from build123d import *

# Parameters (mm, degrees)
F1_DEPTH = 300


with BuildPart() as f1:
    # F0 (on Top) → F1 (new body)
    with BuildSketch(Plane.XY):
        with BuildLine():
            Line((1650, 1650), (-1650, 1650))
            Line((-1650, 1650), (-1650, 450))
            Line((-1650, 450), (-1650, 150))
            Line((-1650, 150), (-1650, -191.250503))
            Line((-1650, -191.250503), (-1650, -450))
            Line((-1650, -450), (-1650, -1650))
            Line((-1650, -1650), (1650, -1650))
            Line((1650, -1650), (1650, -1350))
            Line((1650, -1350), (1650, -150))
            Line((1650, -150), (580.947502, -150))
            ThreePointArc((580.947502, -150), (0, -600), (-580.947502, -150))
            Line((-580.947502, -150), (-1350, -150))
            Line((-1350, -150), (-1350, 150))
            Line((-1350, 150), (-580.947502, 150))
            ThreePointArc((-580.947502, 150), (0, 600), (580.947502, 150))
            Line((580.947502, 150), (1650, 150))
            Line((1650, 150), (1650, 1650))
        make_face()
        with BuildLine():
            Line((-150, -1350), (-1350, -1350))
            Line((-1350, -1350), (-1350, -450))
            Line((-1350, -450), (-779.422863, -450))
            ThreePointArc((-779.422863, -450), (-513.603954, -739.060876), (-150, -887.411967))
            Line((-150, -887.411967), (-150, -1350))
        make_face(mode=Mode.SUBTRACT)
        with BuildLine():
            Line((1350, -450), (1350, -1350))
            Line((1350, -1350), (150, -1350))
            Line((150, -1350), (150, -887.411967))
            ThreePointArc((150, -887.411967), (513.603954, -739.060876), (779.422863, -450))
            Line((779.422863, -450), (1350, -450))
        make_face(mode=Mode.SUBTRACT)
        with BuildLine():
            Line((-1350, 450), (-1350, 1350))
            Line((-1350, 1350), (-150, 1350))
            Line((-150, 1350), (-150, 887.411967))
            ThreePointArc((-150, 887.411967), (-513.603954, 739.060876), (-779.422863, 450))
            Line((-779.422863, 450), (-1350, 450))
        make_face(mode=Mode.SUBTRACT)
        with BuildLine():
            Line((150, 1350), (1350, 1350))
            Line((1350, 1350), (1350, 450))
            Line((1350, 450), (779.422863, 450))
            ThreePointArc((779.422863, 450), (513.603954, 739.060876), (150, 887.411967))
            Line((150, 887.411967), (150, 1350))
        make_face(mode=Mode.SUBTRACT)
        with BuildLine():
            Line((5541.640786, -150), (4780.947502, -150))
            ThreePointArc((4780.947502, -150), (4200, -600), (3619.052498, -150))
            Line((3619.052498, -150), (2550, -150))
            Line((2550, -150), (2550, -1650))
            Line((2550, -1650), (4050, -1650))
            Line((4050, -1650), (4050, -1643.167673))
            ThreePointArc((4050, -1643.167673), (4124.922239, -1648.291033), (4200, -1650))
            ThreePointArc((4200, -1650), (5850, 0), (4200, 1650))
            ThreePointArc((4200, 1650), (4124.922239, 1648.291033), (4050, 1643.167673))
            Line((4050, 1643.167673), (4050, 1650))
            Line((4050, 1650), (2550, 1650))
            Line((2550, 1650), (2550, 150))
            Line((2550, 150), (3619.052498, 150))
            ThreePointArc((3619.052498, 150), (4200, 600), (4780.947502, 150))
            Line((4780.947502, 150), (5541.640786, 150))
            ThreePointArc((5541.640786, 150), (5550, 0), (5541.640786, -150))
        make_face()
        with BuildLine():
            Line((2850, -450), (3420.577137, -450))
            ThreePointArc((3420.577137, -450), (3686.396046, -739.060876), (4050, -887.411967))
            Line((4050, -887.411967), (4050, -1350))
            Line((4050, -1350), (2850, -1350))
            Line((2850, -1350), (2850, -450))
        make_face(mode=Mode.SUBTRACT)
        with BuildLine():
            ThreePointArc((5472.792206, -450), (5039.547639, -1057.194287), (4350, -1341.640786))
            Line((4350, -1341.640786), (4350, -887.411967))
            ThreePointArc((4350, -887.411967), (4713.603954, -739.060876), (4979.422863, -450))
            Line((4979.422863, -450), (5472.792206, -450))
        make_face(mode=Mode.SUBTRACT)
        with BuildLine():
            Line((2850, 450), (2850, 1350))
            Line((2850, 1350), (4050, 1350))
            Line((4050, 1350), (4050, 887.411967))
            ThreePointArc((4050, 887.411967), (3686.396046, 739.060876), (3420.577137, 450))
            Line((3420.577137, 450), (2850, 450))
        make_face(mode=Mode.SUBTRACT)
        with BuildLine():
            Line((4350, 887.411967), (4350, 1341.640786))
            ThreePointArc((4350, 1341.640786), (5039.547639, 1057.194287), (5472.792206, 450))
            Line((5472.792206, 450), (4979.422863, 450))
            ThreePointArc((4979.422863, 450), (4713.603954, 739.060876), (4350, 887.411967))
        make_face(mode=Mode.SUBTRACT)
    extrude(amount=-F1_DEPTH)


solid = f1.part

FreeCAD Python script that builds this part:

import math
import FreeCAD as App
import Part
import Sketcher

V = App.Vector

doc = App.newDocument("Part")
body = doc.addObject("PartDesign::Body", "Body")
body.AllowCompound = True

# Sketch on XY plane
sketch1 = body.newObject("Sketcher::SketchObject", "Sketch")
sketch1.AttachmentSupport = (doc.getObject("XY_Plane"), [""])
sketch1.MapMode = "FlatFace"
sketch1.addGeometry([
    Part.LineSegment(V(1650, 1650, 0), V(-1650, 1650, 0)),  # 0
    Part.LineSegment(V(-1650, 1650, 0), V(-1650, -1650, 0)),  # 1
    Part.LineSegment(V(-1650, -1650, 0), V(1650, -1650, 0)),  # 2
    Part.LineSegment(V(1650, -1650, 0), V(1650, -150, 0)),  # 3
    Part.LineSegment(V(1650, -150, 0), V(580.947502, -150, 0)),  # 4
    Part.ArcOfCircle(Part.Circle(V(0, 0, 0), V(0, 0, 1), 600), math.radians(-165.522488), math.radians(-14.477512)),  # 5
    Part.LineSegment(V(-580.947502, -150, 0), V(-1350, -150, 0)),  # 6
    Part.LineSegment(V(-1350, -150, 0), V(-1350, 150, 0)),  # 7
    Part.LineSegment(V(-1350, 150, 0), V(-580.947502, 150, 0)),  # 8
    Part.ArcOfCircle(Part.Circle(V(0, 0, 0), V(0, 0, 1), 600), math.radians(14.477512), math.radians(165.522488)),  # 9
    Part.LineSegment(V(580.947502, 150, 0), V(1650, 150, 0)),  # 10
    Part.LineSegment(V(1650, 150, 0), V(1650, 1650, 0)),  # 11
    Part.LineSegment(V(-150, -887.411967, 0), V(-150, -1350, 0)),  # 12
    Part.LineSegment(V(-150, -1350, 0), V(-1350, -1350, 0)),  # 13
    Part.LineSegment(V(-1350, -1350, 0), V(-1350, -450, 0)),  # 14
    Part.LineSegment(V(-1350, -450, 0), V(-779.422863, -450, 0)),  # 15
    Part.ArcOfCircle(Part.Circle(V(-0.000003, -0.000003, 0), V(0, 0, 1), 899.999996), math.radians(-150), math.radians(-99.594068)),  # 16
    Part.LineSegment(V(779.422863, -450, 0), V(1350, -450, 0)),  # 17
    Part.LineSegment(V(1350, -450, 0), V(1350, -1350, 0)),  # 18
    Part.LineSegment(V(1350, -1350, 0), V(150, -1350, 0)),  # 19
    Part.LineSegment(V(150, -1350, 0), V(150, -887.411967, 0)),  # 20
    Part.ArcOfCircle(Part.Circle(V(0.000003, -0.000003, 0), V(0, 0, 1), 899.999996), math.radians(-80.405932), math.radians(-30)),  # 21
    Part.LineSegment(V(-779.422863, 450, 0), V(-1350, 450, 0)),  # 22
    Part.LineSegment(V(-1350, 450, 0), V(-1350, 1350, 0)),  # 23
    Part.LineSegment(V(-1350, 1350, 0), V(-150, 1350, 0)),  # 24
    Part.LineSegment(V(-150, 1350, 0), V(-150, 887.411967, 0)),  # 25
    Part.ArcOfCircle(Part.Circle(V(-0.000003, 0.000003, 0), V(0, 0, 1), 899.999996), math.radians(99.594068), math.radians(150)),  # 26
    Part.LineSegment(V(150, 887.411967, 0), V(150, 1350, 0)),  # 27
    Part.LineSegment(V(150, 1350, 0), V(1350, 1350, 0)),  # 28
    Part.LineSegment(V(1350, 1350, 0), V(1350, 450, 0)),  # 29
    Part.LineSegment(V(1350, 450, 0), V(779.422863, 450, 0)),  # 30
    Part.ArcOfCircle(Part.Circle(V(0.000003, 0.000003, 0), V(0, 0, 1), 899.999996), math.radians(30), math.radians(80.405932)),  # 31
    Part.LineSegment(V(5541.640786, -150, 0), V(4780.947502, -150, 0)),  # 32
    Part.ArcOfCircle(Part.Circle(V(4200, 0, 0), V(0, 0, 1), 600), math.radians(-165.522488), math.radians(-14.477512)),  # 33
    Part.LineSegment(V(3619.052498, -150, 0), V(2550, -150, 0)),  # 34
    Part.LineSegment(V(2550, -150, 0), V(2550, -1650, 0)),  # 35
    Part.LineSegment(V(2550, -1650, 0), V(4050, -1650, 0)),  # 36
    Part.LineSegment(V(4050, -1650, 0), V(4050, -1643.167673, 0)),  # 37
    Part.ArcOfCircle(Part.Circle(V(4200.00001, 0.000331, 0), V(0, 0, 1), 1650.000331), math.radians(-95.215908), math.radians(-90)),  # 38
    Part.ArcOfCircle(Part.Circle(V(4200, 0, 0), V(0, 0, 1), 1650), math.radians(-90), math.radians(90)),  # 39
    Part.ArcOfCircle(Part.Circle(V(4200.00001, -0.000331, 0), V(0, 0, 1), 1650.000331), math.radians(90), math.radians(95.215908)),  # 40
    Part.LineSegment(V(4050, 1643.167673, 0), V(4050, 1650, 0)),  # 41
    Part.LineSegment(V(4050, 1650, 0), V(2550, 1650, 0)),  # 42
    Part.LineSegment(V(2550, 1650, 0), V(2550, 150, 0)),  # 43
    Part.LineSegment(V(2550, 150, 0), V(3619.052498, 150, 0)),  # 44
    Part.ArcOfCircle(Part.Circle(V(4200, 0, 0), V(0, 0, 1), 600), math.radians(14.477512), math.radians(165.522488)),  # 45
    Part.LineSegment(V(4780.947502, 150, 0), V(5541.640786, 150, 0)),  # 46
    Part.ArcOfCircle(Part.Circle(V(4200.00008, 0, 0), V(0, 0, 1), 1349.99992), math.radians(-6.379371), math.radians(6.379371)),  # 47
    Part.LineSegment(V(2850, -1350, 0), V(2850, -450, 0)),  # 48
    Part.LineSegment(V(2850, -450, 0), V(3420.577137, -450, 0)),  # 49
    Part.ArcOfCircle(Part.Circle(V(4199.999997, -0.000003, 0), V(0, 0, 1), 899.999996), math.radians(-150), math.radians(-99.594068)),  # 50
    Part.LineSegment(V(4050, -887.411967, 0), V(4050, -1350, 0)),  # 51
    Part.LineSegment(V(4050, -1350, 0), V(2850, -1350, 0)),  # 52
    Part.LineSegment(V(4979.422863, -450, 0), V(5472.792206, -450, 0)),  # 53
    Part.ArcOfCircle(Part.Circle(V(4199.999999, 0.000001, 0), V(0, 0, 1), 1350.000001), math.radians(-83.62063), math.radians(-19.471221)),  # 54
    Part.LineSegment(V(4350, -1341.640786, 0), V(4350, -887.411967, 0)),  # 55
    Part.ArcOfCircle(Part.Circle(V(4200.000003, -0.000003, 0), V(0, 0, 1), 899.999996), math.radians(-80.405932), math.radians(-30)),  # 56
    Part.LineSegment(V(3420.577137, 450, 0), V(2850, 450, 0)),  # 57
    Part.LineSegment(V(2850, 450, 0), V(2850, 1350, 0)),  # 58
    Part.LineSegment(V(2850, 1350, 0), V(4050, 1350, 0)),  # 59
    Part.LineSegment(V(4050, 1350, 0), V(4050, 887.411967, 0)),  # 60
    Part.ArcOfCircle(Part.Circle(V(4199.999997, 0.000003, 0), V(0, 0, 1), 899.999996), math.radians(99.594068), math.radians(150)),  # 61
    Part.ArcOfCircle(Part.Circle(V(4200.000003, 0.000003, 0), V(0, 0, 1), 899.999996), math.radians(30), math.radians(80.405932)),  # 62
    Part.LineSegment(V(4350, 887.411967, 0), V(4350, 1341.640786, 0)),  # 63
    Part.ArcOfCircle(Part.Circle(V(4199.999999, -0.000001, 0), V(0, 0, 1), 1350.000001), math.radians(19.471221), math.radians(83.62063)),  # 64
    Part.LineSegment(V(5472.792206, 450, 0), V(4979.422863, 450, 0)),  # 65
], False)
sketch1.addConstraint([
    Sketcher.Constraint("Coincident", 0, 2, 1, 1),
    Sketcher.Constraint("Coincident", 1, 2, 2, 1),
    Sketcher.Constraint("Coincident", 2, 2, 3, 1),
    Sketcher.Constraint("Coincident", 3, 2, 4, 1),
    Sketcher.Constraint("Coincident", 4, 2, 5, 2),
    Sketcher.Constraint("Coincident", 5, 1, 6, 1),
    Sketcher.Constraint("Coincident", 6, 2, 7, 1),
    Sketcher.Constraint("Coincident", 7, 2, 8, 1),
    Sketcher.Constraint("Coincident", 8, 2, 9, 2),
    Sketcher.Constraint("Coincident", 9, 1, 10, 1),
    Sketcher.Constraint("Coincident", 10, 2, 11, 1),
    Sketcher.Constraint("Coincident", 11, 2, 0, 1),
    Sketcher.Constraint("Coincident", 12, 2, 13, 1),
    Sketcher.Constraint("Coincident", 13, 2, 14, 1),
    Sketcher.Constraint("Coincident", 14, 2, 15, 1),
    Sketcher.Constraint("Coincident", 15, 2, 16, 1),
    Sketcher.Constraint("Coincident", 16, 2, 12, 1),
    Sketcher.Constraint("Coincident", 17, 2, 18, 1),
    Sketcher.Constraint("Coincident", 18, 2, 19, 1),
    Sketcher.Constraint("Coincident", 19, 2, 20, 1),
    Sketcher.Constraint("Coincident", 20, 2, 21, 1),
    Sketcher.Constraint("Coincident", 21, 2, 17, 1),
    Sketcher.Constraint("Coincident", 22, 2, 23, 1),
    Sketcher.Constraint("Coincident", 23, 2, 24, 1),
    Sketcher.Constraint("Coincident", 24, 2, 25, 1),
    Sketcher.Constraint("Coincident", 25, 2, 26, 1),
    Sketcher.Constraint("Coincident", 26, 2, 22, 1),
    Sketcher.Constraint("Coincident", 27, 2, 28, 1),
    Sketcher.Constraint("Coincident", 28, 2, 29, 1),
    Sketcher.Constraint("Coincident", 29, 2, 30, 1),
    Sketcher.Constraint("Coincident", 30, 2, 31, 1),
    Sketcher.Constraint("Coincident", 31, 2, 27, 1),
    Sketcher.Constraint("Coincident", 32, 2, 33, 2),
    Sketcher.Constraint("Coincident", 33, 1, 34, 1),
    Sketcher.Constraint("Coincident", 34, 2, 35, 1),
    Sketcher.Constraint("Coincident", 35, 2, 36, 1),
    Sketcher.Constraint("Coincident", 36, 2, 37, 1),
    Sketcher.Constraint("Coincident", 37, 2, 38, 1),
    Sketcher.Constraint("Coincident", 38, 2, 39, 1),
    Sketcher.Constraint("Coincident", 39, 2, 40, 1),
    Sketcher.Constraint("Coincident", 40, 2, 41, 1),
    Sketcher.Constraint("Coincident", 41, 2, 42, 1),
    Sketcher.Constraint("Coincident", 42, 2, 43, 1),
    Sketcher.Constraint("Coincident", 43, 2, 44, 1),
    Sketcher.Constraint("Coincident", 44, 2, 45, 2),
    Sketcher.Constraint("Coincident", 45, 1, 46, 1),
    Sketcher.Constraint("Coincident", 46, 2, 47, 2),
    Sketcher.Constraint("Coincident", 47, 1, 32, 1),
    Sketcher.Constraint("Coincident", 48, 2, 49, 1),
    Sketcher.Constraint("Coincident", 49, 2, 50, 1),
    Sketcher.Constraint("Coincident", 50, 2, 51, 1),
    Sketcher.Constraint("Coincident", 51, 2, 52, 1),
    Sketcher.Constraint("Coincident", 52, 2, 48, 1),
    Sketcher.Constraint("Coincident", 53, 2, 54, 2),
    Sketcher.Constraint("Coincident", 54, 1, 55, 1),
    Sketcher.Constraint("Coincident", 55, 2, 56, 1),
    Sketcher.Constraint("Coincident", 56, 2, 53, 1),
    Sketcher.Constraint("Coincident", 57, 2, 58, 1),
    Sketcher.Constraint("Coincident", 58, 2, 59, 1),
    Sketcher.Constraint("Coincident", 59, 2, 60, 1),
    Sketcher.Constraint("Coincident", 60, 2, 61, 1),
    Sketcher.Constraint("Coincident", 61, 2, 57, 1),
    Sketcher.Constraint("Coincident", 62, 2, 63, 1),
    Sketcher.Constraint("Coincident", 63, 2, 64, 2),
    Sketcher.Constraint("Coincident", 64, 1, 65, 1),
    Sketcher.Constraint("Coincident", 65, 2, 62, 1),
    Sketcher.Constraint("Horizontal", 0),
    Sketcher.Constraint("Vertical", 1),
    Sketcher.Constraint("Horizontal", 2),
    Sketcher.Constraint("Vertical", 3),
    Sketcher.Constraint("Horizontal", 4),
    Sketcher.Constraint("Horizontal", 6),
    Sketcher.Constraint("Vertical", 7),
    Sketcher.Constraint("Horizontal", 8),
    Sketcher.Constraint("Horizontal", 10),
    Sketcher.Constraint("Vertical", 11),
    Sketcher.Constraint("Vertical", 12),
    Sketcher.Constraint("Horizontal", 13),
    Sketcher.Constraint("Vertical", 14),
    Sketcher.Constraint("Horizontal", 15),
    Sketcher.Constraint("Horizontal", 17),
    Sketcher.Constraint("Vertical", 18),
    Sketcher.Constraint("Horizontal", 19),
    Sketcher.Constraint("Vertical", 20),
    Sketcher.Constraint("Horizontal", 22),
    Sketcher.Constraint("Vertical", 23),
    Sketcher.Constraint("Horizontal", 24),
    Sketcher.Constraint("Vertical", 25),
    Sketcher.Constraint("Vertical", 27),
    Sketcher.Constraint("Horizontal", 28),
    Sketcher.Constraint("Vertical", 29),
    Sketcher.Constraint("Horizontal", 30),
    Sketcher.Constraint("Horizontal", 32),
    Sketcher.Constraint("Horizontal", 34),
    Sketcher.Constraint("Vertical", 35),
    Sketcher.Constraint("Horizontal", 36),
    Sketcher.Constraint("Vertical", 37),
    Sketcher.Constraint("Vertical", 41),
    Sketcher.Constraint("Horizontal", 42),
    Sketcher.Constraint("Vertical", 43),
    Sketcher.Constraint("Horizontal", 44),
    Sketcher.Constraint("Horizontal", 46),
    Sketcher.Constraint("Vertical", 48),
    Sketcher.Constraint("Horizontal", 49),
    Sketcher.Constraint("Vertical", 51),
    Sketcher.Constraint("Horizontal", 52),
    Sketcher.Constraint("Horizontal", 53),
    Sketcher.Constraint("Vertical", 55),
    Sketcher.Constraint("Horizontal", 57),
    Sketcher.Constraint("Vertical", 58),
    Sketcher.Constraint("Horizontal", 59),
    Sketcher.Constraint("Vertical", 60),
    Sketcher.Constraint("Vertical", 63),
    Sketcher.Constraint("Horizontal", 65),
    Sketcher.Constraint("Coincident", 5, 3, -1, 1),
    Sketcher.Constraint("Coincident", 9, 3, -1, 1),
    Sketcher.Constraint("Coincident", 16, 3, -1, 1),
    Sketcher.Constraint("Coincident", 21, 3, -1, 1),
    Sketcher.Constraint("Coincident", 26, 3, -1, 1),
    Sketcher.Constraint("Coincident", 31, 3, -1, 1),
    Sketcher.Constraint("Coincident", 39, 3, 33, 3),
    Sketcher.Constraint("Coincident", 45, 3, 33, 3),
    Sketcher.Constraint("Coincident", 50, 3, 33, 3),
    Sketcher.Constraint("Coincident", 54, 3, 33, 3),
    Sketcher.Constraint("Coincident", 56, 3, 33, 3),
    Sketcher.Constraint("Coincident", 61, 3, 33, 3),
    Sketcher.Constraint("Coincident", 62, 3, 33, 3),
    Sketcher.Constraint("Coincident", 64, 3, 33, 3),
    Sketcher.Constraint("Equal", 5, 9),
    Sketcher.Constraint("Equal", 16, 21),
    Sketcher.Constraint("Equal", 21, 26),
    Sketcher.Constraint("Equal", 26, 31),
    Sketcher.Constraint("Equal", 9, 33),
    Sketcher.Constraint("Equal", 38, 40),
    Sketcher.Constraint("Equal", 33, 45),
    Sketcher.Constraint("Equal", 31, 50),
    Sketcher.Constraint("Equal", 50, 56),
    Sketcher.Constraint("Equal", 56, 61),
    Sketcher.Constraint("Equal", 61, 62),
    Sketcher.Constraint("Equal", 54, 64),
    Sketcher.Constraint("Symmetric", 0, 2, 2, 2, -1, 1),
    Sketcher.Constraint("Symmetric", 17, 2, 22, 2, -1, 1),
    Sketcher.Constraint("Symmetric", 19, 2, 24, 2, -1, 1),
    Sketcher.Constraint("Symmetric", 12, 2, 27, 2, -1, 1),
    Sketcher.Constraint("Symmetric", 14, 2, 29, 2, -1, 1),
    Sketcher.Constraint("Symmetric", 14, 2, 17, 2, -2),
    Sketcher.Constraint("Symmetric", 12, 2, 19, 2, -2),
    Sketcher.Constraint("Symmetric", 38, 3, 40, 3, -1),
    Sketcher.Constraint("Symmetric", 3, 2, 10, 2, -1),
    Sketcher.Constraint("Symmetric", 36, 2, 41, 2, -1),
    Sketcher.Constraint("Symmetric", 34, 2, 43, 2, -1),
    Sketcher.Constraint("Symmetric", 48, 2, 57, 2, -1),
    Sketcher.Constraint("Symmetric", 51, 2, 59, 2, -1),
    Sketcher.Constraint("PointOnObject", 47, 3, -1),
    Sketcher.Constraint("Horizontal", 6, 2, 32, 2),
    Sketcher.Constraint("Horizontal", 2, 2, 35, 2),
    Sketcher.Constraint("Horizontal", 36, 2, 38, 2),
    Sketcher.Constraint("Horizontal", 10, 2, 43, 2),
    Sketcher.Constraint("Horizontal", 19, 2, 51, 2),
    Sketcher.Constraint("Horizontal", 49, 2, 53, 2),
    Sketcher.Constraint("Horizontal", 30, 2, 57, 2),
    Sketcher.Constraint("Vertical", 7, 2, 13, 2),
    Sketcher.Constraint("Vertical", 64, 3, 38, 2),
    Sketcher.Constraint("Vertical", 38, 2, 39, 2),
    Sketcher.Constraint("Equal", 6, 8),
    Sketcher.Constraint("Equal", 10, 34),
    Sketcher.Constraint("Equal", 32, 46),
    Sketcher.Constraint("Equal", 30, 49),
    Sketcher.Constraint("Equal", 28, 52),
    Sketcher.Constraint("Equal", 53, 65),
    Sketcher.Constraint("Equal", 2, 1),
    Sketcher.Constraint("Equal", 42, 3),
    Sketcher.Constraint("Equal", 55, 63),
    Sketcher.Constraint("Radius", 5, 600.0),
    Sketcher.Constraint("Radius", 39, 1650.0),
    Sketcher.Constraint("Radius", 54, 1350.000001),
    Sketcher.Constraint("DistanceX", 13, 2, 13, 1, 1200.0),
    Sketcher.Constraint("DistanceX", 36, 1, 36, 2, 1500.0),
    Sketcher.Constraint("DistanceY", 7, 1, 7, 2, 300.0),
    Sketcher.Constraint("DistanceY", 14, 1, 14, 2, 900.0),
    Sketcher.Constraint("DistanceX", -1, 1, 33, 3, 4200.0),
    Sketcher.Constraint("DistanceX", 6, 2, -1, 1, 1350.0),
    Sketcher.Constraint("DistanceY", 12, 2, -1, 1, 1350.0),
    Sketcher.Constraint("DistanceX", -1, 1, 55, 2, 4350.0),
    Sketcher.Constraint("Radius", 38, 1650.000331),
    Sketcher.Constraint("Radius", 47, 1349.99992),
    Sketcher.Constraint("Radius", 16, 899.999996),
    Sketcher.Constraint("DistanceX", 32, 2, 32, 1, 760.693284),
    Sketcher.Constraint("DistanceY", 37, 1, 37, 2, 6.832327),
])
pad1 = body.newObject("PartDesign::Pad", "Pad")
pad1.Profile = sketch1
pad1.Length = 300
pad1.Reversed = True

doc.recompute()
